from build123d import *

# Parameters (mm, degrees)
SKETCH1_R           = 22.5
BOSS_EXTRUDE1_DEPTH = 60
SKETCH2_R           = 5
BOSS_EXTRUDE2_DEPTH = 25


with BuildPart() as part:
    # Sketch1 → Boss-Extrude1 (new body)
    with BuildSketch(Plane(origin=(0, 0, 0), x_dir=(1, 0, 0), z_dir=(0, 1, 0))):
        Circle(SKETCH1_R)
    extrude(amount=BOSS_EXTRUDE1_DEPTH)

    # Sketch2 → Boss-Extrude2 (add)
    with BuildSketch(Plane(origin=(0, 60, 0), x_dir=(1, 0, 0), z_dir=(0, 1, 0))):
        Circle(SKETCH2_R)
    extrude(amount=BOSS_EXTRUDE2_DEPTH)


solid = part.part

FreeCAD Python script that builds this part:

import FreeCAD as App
import Part
import Sketcher

V = App.Vector

doc = App.newDocument("Part")
body = doc.addObject("PartDesign::Body", "Body")

# Sketch on XZ plane
sketch1 = doc.addObject("Sketcher::SketchObject", "Sketch")
body.addObject(sketch1)
sketch1.AttachmentSupport = (doc.XZ_Plane, [""])
sketch1.MapMode = "FlatFace"
sketch1.addGeometry(Part.Circle(V(0, 0, 0), V(0, 0, 1), 22.5), False)
sketch1.addConstraint([
    Sketcher.Constraint("Coincident", 0, 3, -1, 1),
    Sketcher.Constraint("Diameter", 0, 45.0),
])
pad1 = doc.addObject("PartDesign::Pad", "Pad")
body.addObject(pad1)
pad1.Profile = sketch1
pad1.Length = 60
pad1.Reversed = True

# Sketch on XZ plane
sketch2 = doc.addObject("Sketcher::SketchObject", "Sketch001")
body.addObject(sketch2)
sketch2.AttachmentSupport = (doc.XZ_Plane, [""])
sketch2.MapMode = "FlatFace"
sketch2.AttachmentOffset = App.Placement(V(0, 0, -60), App.Rotation())
sketch2.addGeometry(Part.Circle(V(0, 0, 0), V(0, 0, 1), 5), False)
sketch2.addConstraint([
    Sketcher.Constraint("Coincident", 0, 3, -1, 1),
    Sketcher.Constraint("Diameter", 0, 10.0),
])
pad2 = doc.addObject("PartDesign::Pad", "Pad001")
body.addObject(pad2)
pad2.Profile = sketch2
pad2.Length = 25
pad2.Reversed = True

doc.recompute()
